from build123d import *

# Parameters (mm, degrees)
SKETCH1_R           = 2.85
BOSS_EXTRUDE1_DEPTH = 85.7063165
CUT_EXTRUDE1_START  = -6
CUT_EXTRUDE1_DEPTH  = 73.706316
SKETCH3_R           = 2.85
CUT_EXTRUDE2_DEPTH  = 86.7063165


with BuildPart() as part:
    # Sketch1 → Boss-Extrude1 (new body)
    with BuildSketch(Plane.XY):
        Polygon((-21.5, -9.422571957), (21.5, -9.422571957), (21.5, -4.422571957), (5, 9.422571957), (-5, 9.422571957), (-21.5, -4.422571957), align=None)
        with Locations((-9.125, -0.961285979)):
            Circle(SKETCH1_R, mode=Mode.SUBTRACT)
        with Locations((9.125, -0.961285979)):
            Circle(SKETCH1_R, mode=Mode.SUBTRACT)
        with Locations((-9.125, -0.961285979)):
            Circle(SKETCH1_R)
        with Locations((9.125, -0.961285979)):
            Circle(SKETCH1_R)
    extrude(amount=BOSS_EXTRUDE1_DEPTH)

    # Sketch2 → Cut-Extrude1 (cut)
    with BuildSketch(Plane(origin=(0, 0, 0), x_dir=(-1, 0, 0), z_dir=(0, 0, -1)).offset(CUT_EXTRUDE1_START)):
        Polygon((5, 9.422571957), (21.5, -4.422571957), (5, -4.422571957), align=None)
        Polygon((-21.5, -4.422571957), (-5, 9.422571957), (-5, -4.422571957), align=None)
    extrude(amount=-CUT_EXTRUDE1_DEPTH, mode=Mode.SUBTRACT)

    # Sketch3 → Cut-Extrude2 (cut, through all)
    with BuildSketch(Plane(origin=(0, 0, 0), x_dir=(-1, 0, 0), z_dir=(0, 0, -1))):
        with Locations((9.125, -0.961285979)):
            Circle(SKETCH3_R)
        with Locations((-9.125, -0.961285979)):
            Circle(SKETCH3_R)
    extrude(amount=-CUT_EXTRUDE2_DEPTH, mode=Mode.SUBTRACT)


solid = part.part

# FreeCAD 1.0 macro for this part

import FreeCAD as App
import Part
import Sketcher
from FreeCAD import Vector
Q = App.Units.Quantity


def add_polygon(sketch, points):
    """Adds a closed chain of lines whose ends are joined by coincident constraints."""
    first, n = sketch.GeometryCount, len(points)
    for a, b in zip(points, points[1:] + points[:1]):
        sketch.addGeometry(Part.LineSegment(App.Vector(*a, 0), App.Vector(*b, 0)), False)
    for i in range(n):
        sketch.addConstraint(Sketcher.Constraint("Coincident", first + i, 2, first + (i + 1) % n, 1))

doc = App.newDocument("Part")
body = doc.addObject("PartDesign::Body", "Body")

# Sketch on XY plane
sketch1 = body.newObject("Sketcher::SketchObject", "Sketch")
sketch1.AttachmentSupport = (doc.getObject("XY_Plane"), [""])
sketch1.MapMode = "FlatFace"
add_polygon(sketch1, [(-22, -9), (22, -9), (22, -4), (5, 9), (-5, 9), (-22, -4)])  # lines 0-5
sketch1.addConstraint([
    Sketcher.Constraint("Horizontal", 0),
    Sketcher.Constraint("Vertical", 1),
    Sketcher.Constraint("Horizontal", 3),
    Sketcher.Constraint("Vertical", 5),
    Sketcher.Constraint("Symmetric", 1, 2, 4, 2, -2),
    Sketcher.Constraint("Equal", 2, 4),
    Sketcher.Constraint("DistanceX", 0, 1, 0, 2, Q("43 mm")),
    Sketcher.Constraint("DistanceX", 3, 2, 3, 1, Q("10 mm")),
    Sketcher.Constraint("DistanceY", 1, 1, 1, 2, Q("5 mm")),
    Sketcher.Constraint("Angle", 2, Q("140 deg")),
    Sketcher.Constraint("DistanceY", 0, 2, -1, 1, Q("9.422572 mm")),
])
pad1 = body.newObject("PartDesign::Pad", "Pad")
pad1.Profile = sketch1
pad1.Length = 85.706316

# Sketch on XY plane
sketch2 = body.newObject("Sketcher::SketchObject", "Sketch001")
sketch2.AttachmentSupport = (doc.getObject("XY_Plane"), [""])
sketch2.MapMode = "FlatFace"
sketch2.AttachmentOffset = App.Placement(Vector(0, 0, 6), App.Rotation())
add_polygon(sketch2, [(-22, -4), (-5, 9), (-5, -4)])  # lines 0-2
add_polygon(sketch2, [(5, 9), (22, -4), (5, -4)])  # lines 3-5
sketch2.addConstraint([
    Sketcher.Constraint("Vertical", 1),
    Sketcher.Constraint("Horizontal", 2),
    Sketcher.Constraint("Horizontal", 4),
    Sketcher.Constraint("Vertical", 5),
    Sketcher.Constraint("Symmetric", 2, 2, 3, 2, -2),
    Sketcher.Constraint("Symmetric", 0, 2, 5, 2, -2),
    Sketcher.Constraint("Angle", 0, Q("40 deg")),
    Sketcher.Constraint("DistanceX", 2, 2, 2, 1, Q("16.5 mm")),
    Sketcher.Constraint("DistanceX", 0, 2, -1, 1, Q("5 mm")),
    Sketcher.Constraint("DistanceY", -1, 1, 0, 2, Q("9.422572 mm")),
])
pocket1 = body.newObject("PartDesign::Pocket", "Pocket")
pocket1.Profile = sketch2
pocket1.Length = 73.706316
pocket1.Reversed = True

# Sketch on XY plane
sketch3 = body.newObject("Sketcher::SketchObject", "Sketch002")
sketch3.AttachmentSupport = (doc.getObject("XY_Plane"), [""])
sketch3.MapMode = "FlatFace"
sketch3.addGeometry([
    Part.Circle(Vector(-9.1, -1, 0), Vector(0, 0, 1), 2.9),
    Part.Circle(Vector(9.1, -1, 0), Vector(0, 0, 1), 2.9),
], False)
sketch3.addConstraint([
    Sketcher.Constraint("Equal", 0, 1),
    Sketcher.Constraint("Symmetric", 0, 3, 1, 3, -2),
    Sketcher.Constraint("Diameter", 0, Q("5.7 mm")),
    Sketcher.Constraint("DistanceX", 0, 3, 1, 3, Q("18.25 mm")),
    Sketcher.Constraint("DistanceY", 0, 3, -1, 1, Q("0.961286 mm")),
])
pocket2 = body.newObject("PartDesign::Pocket", "Pocket001")
pocket2.Profile = sketch3
pocket2.Type = "ThroughAll"
pocket2.Reversed = True

doc.recompute()
